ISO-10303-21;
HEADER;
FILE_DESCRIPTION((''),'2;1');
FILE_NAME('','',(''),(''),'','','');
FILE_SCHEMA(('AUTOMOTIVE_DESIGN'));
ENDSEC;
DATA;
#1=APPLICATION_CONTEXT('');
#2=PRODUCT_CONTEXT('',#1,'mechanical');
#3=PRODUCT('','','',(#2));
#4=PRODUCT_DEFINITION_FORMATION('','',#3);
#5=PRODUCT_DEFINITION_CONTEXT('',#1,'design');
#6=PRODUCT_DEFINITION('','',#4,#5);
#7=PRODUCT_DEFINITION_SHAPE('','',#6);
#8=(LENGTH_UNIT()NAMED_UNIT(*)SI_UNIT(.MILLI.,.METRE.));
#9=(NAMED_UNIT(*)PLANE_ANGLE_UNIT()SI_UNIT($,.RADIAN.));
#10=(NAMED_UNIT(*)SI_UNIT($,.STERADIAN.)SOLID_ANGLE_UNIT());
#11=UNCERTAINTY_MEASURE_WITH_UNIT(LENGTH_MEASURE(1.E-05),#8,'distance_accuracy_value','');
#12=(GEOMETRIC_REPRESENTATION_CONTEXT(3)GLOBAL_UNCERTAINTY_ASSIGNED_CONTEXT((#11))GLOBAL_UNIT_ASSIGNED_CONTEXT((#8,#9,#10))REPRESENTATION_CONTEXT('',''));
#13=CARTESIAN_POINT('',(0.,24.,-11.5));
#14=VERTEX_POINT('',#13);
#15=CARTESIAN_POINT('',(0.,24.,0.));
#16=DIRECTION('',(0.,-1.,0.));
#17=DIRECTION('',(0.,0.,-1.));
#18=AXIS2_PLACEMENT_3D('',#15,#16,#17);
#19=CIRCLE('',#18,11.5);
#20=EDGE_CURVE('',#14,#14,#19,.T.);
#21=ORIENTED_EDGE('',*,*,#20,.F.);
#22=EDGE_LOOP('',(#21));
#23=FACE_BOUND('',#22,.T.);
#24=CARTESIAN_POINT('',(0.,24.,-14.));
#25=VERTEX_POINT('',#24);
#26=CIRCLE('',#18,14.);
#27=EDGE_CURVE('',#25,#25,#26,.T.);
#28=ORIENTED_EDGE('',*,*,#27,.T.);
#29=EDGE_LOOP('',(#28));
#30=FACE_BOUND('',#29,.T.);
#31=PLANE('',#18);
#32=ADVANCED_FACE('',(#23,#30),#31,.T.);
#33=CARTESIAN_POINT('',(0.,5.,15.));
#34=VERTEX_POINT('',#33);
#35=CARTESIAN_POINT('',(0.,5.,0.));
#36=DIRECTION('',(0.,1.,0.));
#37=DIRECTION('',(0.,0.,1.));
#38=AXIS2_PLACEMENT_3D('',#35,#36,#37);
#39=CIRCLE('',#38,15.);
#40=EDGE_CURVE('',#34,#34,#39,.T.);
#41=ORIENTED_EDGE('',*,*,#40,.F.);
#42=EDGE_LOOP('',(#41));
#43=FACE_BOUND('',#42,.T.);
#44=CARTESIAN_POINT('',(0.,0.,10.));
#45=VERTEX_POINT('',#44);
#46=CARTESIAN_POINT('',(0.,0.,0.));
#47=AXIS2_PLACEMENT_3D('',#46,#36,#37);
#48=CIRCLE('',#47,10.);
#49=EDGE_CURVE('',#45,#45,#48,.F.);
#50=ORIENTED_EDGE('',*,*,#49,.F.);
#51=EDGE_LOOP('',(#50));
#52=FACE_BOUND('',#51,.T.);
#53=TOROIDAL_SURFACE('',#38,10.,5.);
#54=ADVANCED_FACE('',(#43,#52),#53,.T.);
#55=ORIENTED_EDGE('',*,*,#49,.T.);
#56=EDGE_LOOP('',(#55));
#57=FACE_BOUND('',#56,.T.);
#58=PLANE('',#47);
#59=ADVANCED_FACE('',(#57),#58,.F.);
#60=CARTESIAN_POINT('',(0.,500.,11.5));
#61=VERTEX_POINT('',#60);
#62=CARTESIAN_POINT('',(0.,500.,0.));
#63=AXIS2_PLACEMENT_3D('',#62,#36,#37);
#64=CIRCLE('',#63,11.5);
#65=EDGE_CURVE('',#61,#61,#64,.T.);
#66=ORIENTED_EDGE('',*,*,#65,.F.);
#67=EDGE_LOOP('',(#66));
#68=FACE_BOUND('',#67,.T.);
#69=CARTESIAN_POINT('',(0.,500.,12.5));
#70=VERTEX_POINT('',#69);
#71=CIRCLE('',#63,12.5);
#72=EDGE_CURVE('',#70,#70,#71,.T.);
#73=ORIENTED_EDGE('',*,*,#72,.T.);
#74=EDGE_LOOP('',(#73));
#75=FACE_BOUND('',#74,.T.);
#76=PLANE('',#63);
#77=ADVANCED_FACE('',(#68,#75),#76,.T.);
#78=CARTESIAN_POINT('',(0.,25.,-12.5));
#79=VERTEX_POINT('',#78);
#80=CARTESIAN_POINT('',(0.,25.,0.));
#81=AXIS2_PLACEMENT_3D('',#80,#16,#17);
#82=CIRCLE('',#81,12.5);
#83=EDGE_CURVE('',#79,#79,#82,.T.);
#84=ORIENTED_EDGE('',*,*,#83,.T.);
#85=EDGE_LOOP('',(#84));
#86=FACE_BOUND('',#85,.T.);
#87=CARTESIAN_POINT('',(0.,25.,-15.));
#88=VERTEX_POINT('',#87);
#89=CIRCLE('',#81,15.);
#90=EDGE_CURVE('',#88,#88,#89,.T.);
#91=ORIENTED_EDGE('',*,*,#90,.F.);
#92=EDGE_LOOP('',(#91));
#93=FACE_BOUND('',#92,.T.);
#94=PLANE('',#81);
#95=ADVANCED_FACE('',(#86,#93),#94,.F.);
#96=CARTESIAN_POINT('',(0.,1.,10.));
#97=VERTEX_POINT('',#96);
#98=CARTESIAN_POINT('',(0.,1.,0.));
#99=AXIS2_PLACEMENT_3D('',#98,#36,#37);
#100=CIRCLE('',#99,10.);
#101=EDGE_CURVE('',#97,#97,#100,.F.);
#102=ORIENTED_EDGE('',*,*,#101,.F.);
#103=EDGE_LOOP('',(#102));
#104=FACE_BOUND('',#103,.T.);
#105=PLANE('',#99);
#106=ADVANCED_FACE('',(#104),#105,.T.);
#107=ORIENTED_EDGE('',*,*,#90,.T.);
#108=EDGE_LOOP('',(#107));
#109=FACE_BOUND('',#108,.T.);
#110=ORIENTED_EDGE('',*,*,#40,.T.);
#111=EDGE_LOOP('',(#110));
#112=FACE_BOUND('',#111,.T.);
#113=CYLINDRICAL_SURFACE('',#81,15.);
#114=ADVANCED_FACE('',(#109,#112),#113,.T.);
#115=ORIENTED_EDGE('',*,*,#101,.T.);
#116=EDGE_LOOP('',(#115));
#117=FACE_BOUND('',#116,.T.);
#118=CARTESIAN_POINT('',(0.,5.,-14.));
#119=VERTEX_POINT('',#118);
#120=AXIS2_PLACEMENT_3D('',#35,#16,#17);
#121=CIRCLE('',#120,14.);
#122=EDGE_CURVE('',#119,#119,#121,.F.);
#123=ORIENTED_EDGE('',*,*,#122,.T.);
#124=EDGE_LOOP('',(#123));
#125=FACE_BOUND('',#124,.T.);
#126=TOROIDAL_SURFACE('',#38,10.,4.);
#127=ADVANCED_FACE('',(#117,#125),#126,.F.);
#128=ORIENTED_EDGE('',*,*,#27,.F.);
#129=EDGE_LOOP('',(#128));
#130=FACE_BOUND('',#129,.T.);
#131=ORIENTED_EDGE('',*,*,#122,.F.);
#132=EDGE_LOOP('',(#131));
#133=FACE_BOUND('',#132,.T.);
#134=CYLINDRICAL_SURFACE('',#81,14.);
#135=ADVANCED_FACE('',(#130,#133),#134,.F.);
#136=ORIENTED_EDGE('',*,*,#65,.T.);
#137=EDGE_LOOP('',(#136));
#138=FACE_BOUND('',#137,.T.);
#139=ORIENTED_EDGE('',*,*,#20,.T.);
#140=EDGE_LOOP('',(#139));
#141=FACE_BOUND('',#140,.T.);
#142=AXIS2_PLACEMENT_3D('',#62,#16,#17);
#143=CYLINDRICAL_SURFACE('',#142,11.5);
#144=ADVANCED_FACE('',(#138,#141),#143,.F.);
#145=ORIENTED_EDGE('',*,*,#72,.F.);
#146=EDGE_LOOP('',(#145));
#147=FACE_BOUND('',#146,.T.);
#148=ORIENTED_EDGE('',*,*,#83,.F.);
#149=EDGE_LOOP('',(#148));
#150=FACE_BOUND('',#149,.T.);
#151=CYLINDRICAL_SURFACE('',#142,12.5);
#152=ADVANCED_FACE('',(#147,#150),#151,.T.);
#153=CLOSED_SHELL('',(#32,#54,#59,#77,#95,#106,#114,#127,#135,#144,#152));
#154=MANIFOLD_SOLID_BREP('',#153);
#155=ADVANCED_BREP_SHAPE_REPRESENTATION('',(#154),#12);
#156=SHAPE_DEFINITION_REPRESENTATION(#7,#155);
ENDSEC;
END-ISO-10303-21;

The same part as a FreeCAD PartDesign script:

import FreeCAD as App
import Part
import Sketcher

V = App.Vector
Q = App.Units.Quantity


def edges_at(feature, points):
    """Names of the edges that pass closest to the given points."""
    edges = feature.Shape.Edges
    near = lambda p: min(range(len(edges)), key=lambda i: edges[i].distToShape(Part.Vertex(*p))[0])
    return sorted({f"Edge{near(p) + 1}" for p in points})


def faces_at(feature, points):
    """Names of the faces that lie closest to the given points."""
    faces = feature.Shape.Faces
    near = lambda p: min(range(len(faces)), key=lambda i: faces[i].distToShape(Part.Vertex(*p))[0])
    return sorted({f"Face{near(p) + 1}" for p in points})

doc = App.newDocument("Part")
body = doc.addObject("PartDesign::Body", "Body")

sketch1 = body.newObject("Sketcher::SketchObject", "Sketch")
sketch1.AttachmentSupport = (doc.getObject("XZ_Plane"), [""])
sketch1.MapMode = "FlatFace"
sketch1.addGeometry(Part.Circle(V(0, 0, 0), V(0, 0, 1), 12), False)
sketch1.addConstraint([
    Sketcher.Constraint("Coincident", 0, 3, -1, 1),
    Sketcher.Constraint("Diameter", 0, Q("25 mm")),
])
pad1 = body.newObject("PartDesign::Pad", "Pad")
pad1.Profile = sketch1
pad1.Length = 500
pad1.Reversed = True

sketch2 = body.newObject("Sketcher::SketchObject", "Sketch001")
sketch2.AttachmentSupport = (doc.getObject("XZ_Plane"), [""])
sketch2.MapMode = "FlatFace"
sketch2.addGeometry(Part.Circle(V(0, 0, 0), V(0, 0, 1), 15), False)
sketch2.addConstraint([
    Sketcher.Constraint("Coincident", 0, 3, -1, 1),
    Sketcher.Constraint("Diameter", 0, Q("30 mm")),
])
pad2 = body.newObject("PartDesign::Pad", "Pad001")
pad2.Profile = sketch2
pad2.Length = 25
pad2.Reversed = True
doc.recompute()

fillet = body.newObject("PartDesign::Fillet", "Fillet")
fillet.Base = (pad2, edges_at(pad2, [(0, 0, 15)]))
fillet.Radius = 5
doc.recompute()

thickness = body.newObject("PartDesign::Thickness", "Thickness")
thickness.Base = (fillet, faces_at(fillet, [(0, 500, 0)]))
thickness.Value = 1
thickness.Reversed = True
thickness.Join = "Intersection"

doc.recompute()
